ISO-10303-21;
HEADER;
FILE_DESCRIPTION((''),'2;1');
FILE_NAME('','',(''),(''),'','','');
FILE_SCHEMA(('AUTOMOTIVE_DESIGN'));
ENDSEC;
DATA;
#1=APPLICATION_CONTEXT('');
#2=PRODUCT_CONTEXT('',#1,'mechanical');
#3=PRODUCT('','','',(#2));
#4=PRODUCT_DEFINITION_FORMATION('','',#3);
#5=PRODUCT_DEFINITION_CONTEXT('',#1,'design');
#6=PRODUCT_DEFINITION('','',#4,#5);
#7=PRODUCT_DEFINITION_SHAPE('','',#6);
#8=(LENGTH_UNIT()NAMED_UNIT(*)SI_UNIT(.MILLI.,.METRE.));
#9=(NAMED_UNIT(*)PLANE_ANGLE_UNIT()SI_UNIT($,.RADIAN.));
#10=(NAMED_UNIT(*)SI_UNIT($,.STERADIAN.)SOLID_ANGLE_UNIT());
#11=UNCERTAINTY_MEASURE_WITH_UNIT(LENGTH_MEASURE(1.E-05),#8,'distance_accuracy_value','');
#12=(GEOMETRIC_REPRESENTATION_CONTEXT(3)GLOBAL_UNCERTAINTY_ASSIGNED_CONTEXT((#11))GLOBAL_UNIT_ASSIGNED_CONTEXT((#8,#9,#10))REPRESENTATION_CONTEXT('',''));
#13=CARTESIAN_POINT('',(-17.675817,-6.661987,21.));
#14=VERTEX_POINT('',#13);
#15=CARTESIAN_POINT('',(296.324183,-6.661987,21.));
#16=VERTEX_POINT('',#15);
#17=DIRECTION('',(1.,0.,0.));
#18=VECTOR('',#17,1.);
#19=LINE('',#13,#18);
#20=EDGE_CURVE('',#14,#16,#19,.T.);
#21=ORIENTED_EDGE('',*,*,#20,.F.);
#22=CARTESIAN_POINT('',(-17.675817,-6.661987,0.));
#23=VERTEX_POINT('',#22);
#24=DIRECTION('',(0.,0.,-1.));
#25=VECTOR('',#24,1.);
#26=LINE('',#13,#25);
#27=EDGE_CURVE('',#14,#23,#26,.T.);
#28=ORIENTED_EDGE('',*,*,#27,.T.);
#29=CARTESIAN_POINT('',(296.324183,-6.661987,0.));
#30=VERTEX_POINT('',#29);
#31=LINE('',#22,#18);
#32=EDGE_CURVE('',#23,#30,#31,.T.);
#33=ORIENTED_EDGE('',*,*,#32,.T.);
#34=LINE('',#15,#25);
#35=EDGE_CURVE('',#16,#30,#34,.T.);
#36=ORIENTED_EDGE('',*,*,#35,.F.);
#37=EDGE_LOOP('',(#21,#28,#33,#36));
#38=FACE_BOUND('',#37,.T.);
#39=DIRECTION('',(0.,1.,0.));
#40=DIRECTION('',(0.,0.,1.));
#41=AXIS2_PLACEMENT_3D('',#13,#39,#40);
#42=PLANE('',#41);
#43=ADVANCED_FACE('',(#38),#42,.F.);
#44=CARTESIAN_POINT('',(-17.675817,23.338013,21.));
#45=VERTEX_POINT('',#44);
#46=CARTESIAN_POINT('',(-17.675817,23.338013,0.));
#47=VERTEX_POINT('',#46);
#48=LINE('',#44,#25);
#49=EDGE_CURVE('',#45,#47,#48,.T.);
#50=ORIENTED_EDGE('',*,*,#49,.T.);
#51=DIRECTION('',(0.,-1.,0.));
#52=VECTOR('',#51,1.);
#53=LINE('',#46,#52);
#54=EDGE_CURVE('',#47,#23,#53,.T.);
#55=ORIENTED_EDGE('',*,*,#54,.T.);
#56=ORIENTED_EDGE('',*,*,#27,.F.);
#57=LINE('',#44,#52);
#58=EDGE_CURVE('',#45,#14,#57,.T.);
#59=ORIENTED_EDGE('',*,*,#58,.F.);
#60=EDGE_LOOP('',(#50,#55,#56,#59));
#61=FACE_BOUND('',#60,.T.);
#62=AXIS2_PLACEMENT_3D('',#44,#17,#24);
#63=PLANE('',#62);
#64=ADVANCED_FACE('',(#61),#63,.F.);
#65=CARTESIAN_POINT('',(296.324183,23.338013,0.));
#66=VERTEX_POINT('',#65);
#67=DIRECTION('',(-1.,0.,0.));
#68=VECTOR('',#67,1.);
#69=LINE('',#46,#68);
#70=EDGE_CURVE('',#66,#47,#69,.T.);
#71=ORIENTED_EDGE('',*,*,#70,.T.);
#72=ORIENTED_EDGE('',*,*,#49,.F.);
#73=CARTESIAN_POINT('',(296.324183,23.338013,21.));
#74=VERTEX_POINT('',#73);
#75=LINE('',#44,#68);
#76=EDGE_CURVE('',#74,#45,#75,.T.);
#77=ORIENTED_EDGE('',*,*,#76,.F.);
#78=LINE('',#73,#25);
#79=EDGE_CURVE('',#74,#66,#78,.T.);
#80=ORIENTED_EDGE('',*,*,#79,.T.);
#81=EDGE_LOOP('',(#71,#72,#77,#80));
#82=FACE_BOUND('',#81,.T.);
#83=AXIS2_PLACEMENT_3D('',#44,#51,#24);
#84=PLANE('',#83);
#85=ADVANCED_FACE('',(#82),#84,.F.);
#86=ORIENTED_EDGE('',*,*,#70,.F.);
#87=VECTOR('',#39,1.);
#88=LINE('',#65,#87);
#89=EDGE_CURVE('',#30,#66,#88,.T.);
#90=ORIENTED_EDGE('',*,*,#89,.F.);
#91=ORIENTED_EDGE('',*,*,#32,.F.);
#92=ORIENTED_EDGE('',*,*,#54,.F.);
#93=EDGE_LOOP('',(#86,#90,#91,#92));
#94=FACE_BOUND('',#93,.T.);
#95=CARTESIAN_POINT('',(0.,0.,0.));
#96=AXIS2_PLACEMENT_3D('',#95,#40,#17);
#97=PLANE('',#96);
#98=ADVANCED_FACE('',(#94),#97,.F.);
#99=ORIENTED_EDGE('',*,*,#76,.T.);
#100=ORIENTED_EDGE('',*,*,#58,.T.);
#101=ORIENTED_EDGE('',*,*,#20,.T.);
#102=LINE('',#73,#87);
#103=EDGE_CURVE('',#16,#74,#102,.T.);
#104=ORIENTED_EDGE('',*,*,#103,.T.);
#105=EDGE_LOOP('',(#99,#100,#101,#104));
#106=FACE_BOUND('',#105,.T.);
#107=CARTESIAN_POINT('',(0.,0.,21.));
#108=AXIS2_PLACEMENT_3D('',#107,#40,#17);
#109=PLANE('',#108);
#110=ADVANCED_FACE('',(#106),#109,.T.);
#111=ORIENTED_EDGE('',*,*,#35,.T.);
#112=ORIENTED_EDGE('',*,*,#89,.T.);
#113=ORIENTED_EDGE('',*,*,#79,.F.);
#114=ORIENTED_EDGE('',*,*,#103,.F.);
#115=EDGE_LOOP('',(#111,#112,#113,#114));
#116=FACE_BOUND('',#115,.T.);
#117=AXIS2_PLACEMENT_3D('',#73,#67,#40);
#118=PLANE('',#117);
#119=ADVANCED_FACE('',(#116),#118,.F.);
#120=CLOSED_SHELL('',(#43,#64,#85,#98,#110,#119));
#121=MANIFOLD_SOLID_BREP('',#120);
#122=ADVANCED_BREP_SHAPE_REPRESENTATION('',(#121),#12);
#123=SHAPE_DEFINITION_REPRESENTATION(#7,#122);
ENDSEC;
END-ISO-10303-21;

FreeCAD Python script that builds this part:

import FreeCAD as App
import Part
import Sketcher

V = App.Vector
Q = App.Units.Quantity


def add_polygon(sketch, points):
    """Adds a closed chain of lines whose ends are joined by coincident constraints."""
    first, n = sketch.GeometryCount, len(points)
    for a, b in zip(points, points[1:] + points[:1]):
        sketch.addGeometry(Part.LineSegment(App.Vector(*a, 0), App.Vector(*b, 0)), False)
    for i in range(n):
        sketch.addConstraint(Sketcher.Constraint("Coincident", first + i, 2, first + (i + 1) % n, 1))

doc = App.newDocument("Part")
body = doc.addObject("PartDesign::Body", "Body")

sketch1 = doc.addObject("Sketcher::SketchObject", "Sketch")
body.addObject(sketch1)
sketch1.AttachmentSupport = (doc.XY_Plane, [""])
sketch1.MapMode = "FlatFace"
add_polygon(sketch1, [(-18, 23), (-18, -7), (296, -7), (296, 23)])
sketch1.addConstraint(Sketcher.Constraint("Vertical", 0))
sketch1.addConstraint(Sketcher.Constraint("Horizontal", 1))
sketch1.addConstraint(Sketcher.Constraint("Vertical", 2))
sketch1.addConstraint(Sketcher.Constraint("Horizontal", 3))
sketch1.addConstraint(Sketcher.Constraint("DistanceX", 1, 1, 1, 2, Q("314 mm")))
sketch1.addConstraint(Sketcher.Constraint("DistanceY", 0, 2, 0, 1, Q("30 mm")))
sketch1.addConstraint(Sketcher.Constraint("DistanceX", 0, 2, -1, 1, Q("17.675817 mm")))
sketch1.addConstraint(Sketcher.Constraint("DistanceY", 0, 2, -1, 1, Q("6.661987 mm")))
pad1 = doc.addObject("PartDesign::Pad", "Pad")
body.addObject(pad1)
pad1.Profile = sketch1
pad1.Length = 21

doc.recompute()
